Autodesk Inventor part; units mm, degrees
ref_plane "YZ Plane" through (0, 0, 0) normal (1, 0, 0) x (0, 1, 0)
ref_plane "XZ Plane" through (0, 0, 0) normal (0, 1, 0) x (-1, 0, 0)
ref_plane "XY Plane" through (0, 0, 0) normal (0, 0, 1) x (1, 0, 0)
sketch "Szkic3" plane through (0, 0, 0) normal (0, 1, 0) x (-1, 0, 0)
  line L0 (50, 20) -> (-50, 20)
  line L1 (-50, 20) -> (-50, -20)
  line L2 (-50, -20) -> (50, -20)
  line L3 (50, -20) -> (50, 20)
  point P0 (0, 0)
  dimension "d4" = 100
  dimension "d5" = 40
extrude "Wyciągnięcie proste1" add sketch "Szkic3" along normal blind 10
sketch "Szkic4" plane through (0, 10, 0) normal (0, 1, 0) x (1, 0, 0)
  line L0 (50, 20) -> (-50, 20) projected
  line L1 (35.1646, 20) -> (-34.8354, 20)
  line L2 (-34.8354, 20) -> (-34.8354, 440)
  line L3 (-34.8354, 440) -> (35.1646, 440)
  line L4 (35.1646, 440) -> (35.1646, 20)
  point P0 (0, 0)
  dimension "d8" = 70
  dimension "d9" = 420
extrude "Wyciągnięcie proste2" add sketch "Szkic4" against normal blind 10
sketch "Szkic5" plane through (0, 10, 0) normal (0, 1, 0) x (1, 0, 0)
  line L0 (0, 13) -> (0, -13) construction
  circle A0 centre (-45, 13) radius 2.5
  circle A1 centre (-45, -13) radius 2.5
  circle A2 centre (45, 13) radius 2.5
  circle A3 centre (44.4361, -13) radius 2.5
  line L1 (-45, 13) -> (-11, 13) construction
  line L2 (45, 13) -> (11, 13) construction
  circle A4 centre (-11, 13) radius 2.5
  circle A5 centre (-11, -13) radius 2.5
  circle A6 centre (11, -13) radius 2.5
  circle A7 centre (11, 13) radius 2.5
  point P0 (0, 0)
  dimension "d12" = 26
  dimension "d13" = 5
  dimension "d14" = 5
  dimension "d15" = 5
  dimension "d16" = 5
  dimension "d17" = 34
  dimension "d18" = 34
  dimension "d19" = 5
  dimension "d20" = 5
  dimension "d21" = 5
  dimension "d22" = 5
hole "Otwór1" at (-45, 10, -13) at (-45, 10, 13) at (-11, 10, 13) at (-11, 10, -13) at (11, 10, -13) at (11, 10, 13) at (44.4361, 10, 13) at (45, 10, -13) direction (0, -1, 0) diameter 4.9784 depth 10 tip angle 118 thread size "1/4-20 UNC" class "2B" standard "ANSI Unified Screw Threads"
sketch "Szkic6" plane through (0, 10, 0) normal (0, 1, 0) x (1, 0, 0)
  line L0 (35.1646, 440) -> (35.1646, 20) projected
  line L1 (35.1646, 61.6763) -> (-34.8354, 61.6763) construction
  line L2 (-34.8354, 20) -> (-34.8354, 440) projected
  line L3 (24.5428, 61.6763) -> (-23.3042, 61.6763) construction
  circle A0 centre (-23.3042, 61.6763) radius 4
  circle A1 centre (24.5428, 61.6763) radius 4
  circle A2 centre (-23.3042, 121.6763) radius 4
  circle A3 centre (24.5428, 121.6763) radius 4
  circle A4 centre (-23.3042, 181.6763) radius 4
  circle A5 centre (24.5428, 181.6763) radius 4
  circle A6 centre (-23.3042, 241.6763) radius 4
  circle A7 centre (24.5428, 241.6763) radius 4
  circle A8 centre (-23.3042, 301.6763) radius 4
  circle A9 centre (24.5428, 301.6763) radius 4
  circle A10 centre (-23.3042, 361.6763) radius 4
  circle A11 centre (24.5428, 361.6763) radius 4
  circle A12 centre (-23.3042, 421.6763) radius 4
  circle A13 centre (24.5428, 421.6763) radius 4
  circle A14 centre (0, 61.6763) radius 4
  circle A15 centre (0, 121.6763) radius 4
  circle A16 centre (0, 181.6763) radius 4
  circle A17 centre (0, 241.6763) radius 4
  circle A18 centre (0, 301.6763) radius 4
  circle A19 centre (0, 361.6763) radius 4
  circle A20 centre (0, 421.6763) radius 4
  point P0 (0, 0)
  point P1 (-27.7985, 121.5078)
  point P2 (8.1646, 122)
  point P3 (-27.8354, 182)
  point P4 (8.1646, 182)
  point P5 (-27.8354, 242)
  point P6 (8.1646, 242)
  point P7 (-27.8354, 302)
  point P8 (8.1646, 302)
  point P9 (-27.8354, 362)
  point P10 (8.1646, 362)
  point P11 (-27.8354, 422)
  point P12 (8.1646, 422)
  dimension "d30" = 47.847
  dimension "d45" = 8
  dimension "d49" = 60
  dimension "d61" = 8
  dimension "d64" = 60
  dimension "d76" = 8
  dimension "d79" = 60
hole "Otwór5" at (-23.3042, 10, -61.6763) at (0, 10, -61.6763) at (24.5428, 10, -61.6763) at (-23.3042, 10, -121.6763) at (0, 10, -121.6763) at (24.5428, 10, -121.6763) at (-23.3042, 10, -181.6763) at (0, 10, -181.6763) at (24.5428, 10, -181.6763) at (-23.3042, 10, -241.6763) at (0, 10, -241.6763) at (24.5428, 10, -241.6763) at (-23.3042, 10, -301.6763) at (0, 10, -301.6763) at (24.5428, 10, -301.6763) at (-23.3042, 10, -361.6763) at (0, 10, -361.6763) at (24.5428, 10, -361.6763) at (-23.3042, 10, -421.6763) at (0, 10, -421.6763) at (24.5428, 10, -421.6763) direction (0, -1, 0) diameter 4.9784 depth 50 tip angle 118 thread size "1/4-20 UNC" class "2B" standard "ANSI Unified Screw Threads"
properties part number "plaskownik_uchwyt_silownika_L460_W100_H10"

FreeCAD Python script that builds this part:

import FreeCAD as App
import Part
import Sketcher
from FreeCAD import Vector
Q = App.Units.Quantity

doc = App.newDocument("Part")
body = doc.addObject("PartDesign::Body", "Body")

sketch1 = body.newObject("Sketcher::SketchObject", "Sketch")
sketch1.AttachmentSupport = (doc.getObject("XZ_Plane"), [""])
sketch1.MapMode = "FlatFace"
sketch1.addGeometry(Part.LineSegment(Vector(-50, -20, 0), Vector(-50, 20, 0)), False)
sketch1.addGeometry(Part.LineSegment(Vector(-50, 20, 0), Vector(50, 20, 0)), False)
sketch1.addGeometry(Part.LineSegment(Vector(50, 20, 0), Vector(50, -20, 0)), False)
sketch1.addGeometry(Part.LineSegment(Vector(50, -20, 0), Vector(-50, -20, 0)), False)
sketch1.addConstraint(Sketcher.Constraint("Coincident", 0, 2, 1, 1))
sketch1.addConstraint(Sketcher.Constraint("Coincident", 1, 2, 2, 1))
sketch1.addConstraint(Sketcher.Constraint("Coincident", 2, 2, 3, 1))
sketch1.addConstraint(Sketcher.Constraint("Coincident", 3, 2, 0, 1))
sketch1.addConstraint(Sketcher.Constraint("Vertical", 0))
sketch1.addConstraint(Sketcher.Constraint("Horizontal", 1))
sketch1.addConstraint(Sketcher.Constraint("Vertical", 2))
sketch1.addConstraint(Sketcher.Constraint("Horizontal", 3))
sketch1.addConstraint(Sketcher.Constraint("Symmetric", 0, 2, 2, 2, -1, 1))
sketch1.addConstraint(Sketcher.Constraint("DistanceX", 1, 1, 1, 2, Q("3.937 in")))
sketch1.addConstraint(Sketcher.Constraint("DistanceY", 0, 1, 0, 2, Q("1.5748 in")))
pad1 = body.newObject("PartDesign::Pad", "Pad")
pad1.Profile = sketch1
pad1.Length = Q("0.3937008 in")
pad1.Reversed = True

sketch2 = body.newObject("Sketcher::SketchObject", "Sketch001")
sketch2.AttachmentSupport = (doc.getObject("XZ_Plane"), [""])
sketch2.MapMode = "FlatFace"
sketch2.AttachmentOffset = App.Placement(Vector(0, 0, -0.3937008 * 25.4), App.Rotation())
sketch2.addGeometry(Part.LineSegment(Vector(-35, -20, 0), Vector(35, -20, 0)), False)
sketch2.addGeometry(Part.LineSegment(Vector(35, -20, 0), Vector(35, -440, 0)), False)
sketch2.addGeometry(Part.LineSegment(Vector(35, -440, 0), Vector(-35, -440, 0)), False)
sketch2.addGeometry(Part.LineSegment(Vector(-35, -440, 0), Vector(-35, -20, 0)), False)
sketch2.addConstraint(Sketcher.Constraint("Coincident", 0, 2, 1, 1))
sketch2.addConstraint(Sketcher.Constraint("Coincident", 1, 2, 2, 1))
sketch2.addConstraint(Sketcher.Constraint("Coincident", 2, 2, 3, 1))
sketch2.addConstraint(Sketcher.Constraint("Coincident", 3, 2, 0, 1))
sketch2.addConstraint(Sketcher.Constraint("Horizontal", 0))
sketch2.addConstraint(Sketcher.Constraint("Vertical", 1))
sketch2.addConstraint(Sketcher.Constraint("Horizontal", 2))
sketch2.addConstraint(Sketcher.Constraint("Vertical", 3))
sketch2.addConstraint(Sketcher.Constraint("DistanceX", 0, 1, 0, 2, Q("2.7559 in")))
sketch2.addConstraint(Sketcher.Constraint("DistanceY", 1, 2, 1, 1, 420.0))
sketch2.addConstraint(Sketcher.Constraint("DistanceY", 0, 2, -1, 1, Q("0.7874 in")))
sketch2.addConstraint(Sketcher.Constraint("DistanceX", -1, 1, 0, 2, 35.1646))
pad2 = body.newObject("PartDesign::Pad", "Pad001")
pad2.Profile = sketch2
pad2.Length = Q("0.3937008 in")

sketch3 = body.newObject("Sketcher::SketchObject", "Sketch002")
sketch3.AttachmentSupport = (doc.getObject("XZ_Plane"), [""])
sketch3.MapMode = "FlatFace"
sketch3.AttachmentOffset = App.Placement(Vector(0, 0, -0.3937008 * 25.4), App.Rotation())
sketch3.addGeometry(Part.Circle(Vector(-45, -13, 0), Vector(0, 0, 1), 2.5), False)
sketch3.addGeometry(Part.Circle(Vector(-45, 13, 0), Vector(0, 0, 1), 2.5), False)
sketch3.addGeometry(Part.Circle(Vector(-11, 13, 0), Vector(0, 0, 1), 2.5), False)
sketch3.addGeometry(Part.Circle(Vector(-11, -13, 0), Vector(0, 0, 1), 2.5), False)
sketch3.addGeometry(Part.Circle(Vector(11, -13, 0), Vector(0, 0, 1), 2.5), False)
sketch3.addGeometry(Part.Circle(Vector(11, 13, 0), Vector(0, 0, 1), 2.5), False)
sketch3.addGeometry(Part.Circle(Vector(44.4, 13, 0), Vector(0, 0, 1), 2.5), False)
sketch3.addGeometry(Part.Circle(Vector(45, -13, 0), Vector(0, 0, 1), 2.5), False)
sketch3.addConstraint(Sketcher.Constraint("Equal", 0, 1))
sketch3.addConstraint(Sketcher.Constraint("Equal", 1, 2))
sketch3.addConstraint(Sketcher.Constraint("Equal", 2, 3))
sketch3.addConstraint(Sketcher.Constraint("Equal", 3, 4))
sketch3.addConstraint(Sketcher.Constraint("Equal", 4, 5))
sketch3.addConstraint(Sketcher.Constraint("Equal", 5, 6))
sketch3.addConstraint(Sketcher.Constraint("Equal", 6, 7))
sketch3.addConstraint(Sketcher.Constraint("Symmetric", 2, 3, 4, 3, -1, 1))
sketch3.addConstraint(Sketcher.Constraint("Symmetric", 3, 3, 5, 3, -1, 1))
sketch3.addConstraint(Sketcher.Constraint("Symmetric", 1, 3, 7, 3, -1, 1))
sketch3.addConstraint(Sketcher.Constraint("Symmetric", 3, 3, 4, 3, -2))
sketch3.addConstraint(Sketcher.Constraint("Symmetric", 0, 3, 7, 3, -2))
sketch3.addConstraint(Sketcher.Constraint("Horizontal", 1, 3, 2, 3))
sketch3.addConstraint(Sketcher.Constraint("Horizontal", 5, 3, 6, 3))
sketch3.addConstraint(Sketcher.Constraint("Diameter", 0, Q("0.196 in")))
sketch3.addConstraint(Sketcher.Constraint("DistanceY", 0, 3, -1, 1, Q("0.5118 in")))
sketch3.addConstraint(Sketcher.Constraint("DistanceX", 1, 3, 6, 3, Q("3.5211 in")))
sketch3.addConstraint(Sketcher.Constraint("DistanceX", 6, 3, 7, 3, Q("0.0222 in")))
sketch3.addConstraint(Sketcher.Constraint("DistanceX", 2, 3, -1, 1, 11.0))
doc.recompute()
hole = body.newObject("PartDesign::Hole", "Hole")
hole.Profile = sketch3
hole.ThreadType = "None"
hole.Diameter = Q("0.196 in")
hole.DepthType = "Dimension"
hole.Depth = Q("0.3937008 in")
hole.DrillPoint = "Angled"
hole.DrillPointAngle = 118
hole.Reversed = True

sketch4 = body.newObject("Sketcher::SketchObject", "Sketch003")
sketch4.AttachmentSupport = (doc.getObject("XZ_Plane"), [""])
sketch4.MapMode = "FlatFace"
sketch4.AttachmentOffset = App.Placement(Vector(0, 0, -0.3937008 * 25.4), App.Rotation())
sketch4.addGeometry(Part.Circle(Vector(-23.3, -61.7, 0), Vector(0, 0, 1), 2.5), False)
sketch4.addGeometry(Part.Circle(Vector(0, -61.7, 0), Vector(0, 0, 1), 2.5), False)
sketch4.addGeometry(Part.Circle(Vector(24.5, -61.7, 0), Vector(0, 0, 1), 2.5), False)
sketch4.addGeometry(Part.Circle(Vector(-23.3, -121.7, 0), Vector(0, 0, 1), 2.5), False)
sketch4.addGeometry(Part.Circle(Vector(0, -121.7, 0), Vector(0, 0, 1), 2.5), False)
sketch4.addGeometry(Part.Circle(Vector(24.5, -121.7, 0), Vector(0, 0, 1), 2.5), False)
sketch4.addGeometry(Part.Circle(Vector(-23.3, -181.7, 0), Vector(0, 0, 1), 2.5), False)
sketch4.addGeometry(Part.Circle(Vector(0, -181.7, 0), Vector(0, 0, 1), 2.5), False)
sketch4.addGeometry(Part.Circle(Vector(24.5, -181.7, 0), Vector(0, 0, 1), 2.5), False)
sketch4.addGeometry(Part.Circle(Vector(-23.3, -241.7, 0), Vector(0, 0, 1), 2.5), False)
sketch4.addGeometry(Part.Circle(Vector(0, -241.7, 0), Vector(0, 0, 1), 2.5), False)
sketch4.addGeometry(Part.Circle(Vector(24.5, -241.7, 0), Vector(0, 0, 1), 2.5), False)
sketch4.addGeometry(Part.Circle(Vector(-23.3, -301.7, 0), Vector(0, 0, 1), 2.5), False)
sketch4.addGeometry(Part.Circle(Vector(0, -301.7, 0), Vector(0, 0, 1), 2.5), False)
sketch4.addGeometry(Part.Circle(Vector(24.5, -301.7, 0), Vector(0, 0, 1), 2.5), False)
sketch4.addGeometry(Part.Circle(Vector(-23.3, -361.7, 0), Vector(0, 0, 1), 2.5), False)
sketch4.addGeometry(Part.Circle(Vector(0, -361.7, 0), Vector(0, 0, 1), 2.5), False)
sketch4.addGeometry(Part.Circle(Vector(24.5, -361.7, 0), Vector(0, 0, 1), 2.5), False)
sketch4.addGeometry(Part.Circle(Vector(-23.3, -421.7, 0), Vector(0, 0, 1), 2.5), False)
sketch4.addGeometry(Part.Circle(Vector(0, -421.7, 0), Vector(0, 0, 1), 2.5), False)
sketch4.addGeometry(Part.Circle(Vector(24.5, -421.7, 0), Vector(0, 0, 1), 2.5), False)
sketch4.addConstraint(Sketcher.Constraint("Equal", 0, 1))
sketch4.addConstraint(Sketcher.Constraint("Equal", 1, 2))
sketch4.addConstraint(Sketcher.Constraint("Equal", 2, 3))
sketch4.addConstraint(Sketcher.Constraint("Equal", 3, 4))
sketch4.addConstraint(Sketcher.Constraint("Equal", 4, 5))
sketch4.addConstraint(Sketcher.Constraint("Equal", 5, 6))
sketch4.addConstraint(Sketcher.Constraint("Equal", 6, 7))
sketch4.addConstraint(Sketcher.Constraint("Equal", 7, 8))
sketch4.addConstraint(Sketcher.Constraint("Equal", 8, 9))
sketch4.addConstraint(Sketcher.Constraint("Equal", 9, 10))
sketch4.addConstraint(Sketcher.Constraint("Equal", 10, 11))
sketch4.addConstraint(Sketcher.Constraint("Equal", 11, 12))
sketch4.addConstraint(Sketcher.Constraint("Equal", 12, 13))
sketch4.addConstraint(Sketcher.Constraint("Equal", 13, 14))
sketch4.addConstraint(Sketcher.Constraint("Equal", 14, 15))
sketch4.addConstraint(Sketcher.Constraint("Equal", 15, 16))
sketch4.addConstraint(Sketcher.Constraint("Equal", 16, 17))
sketch4.addConstraint(Sketcher.Constraint("Equal", 17, 18))
sketch4.addConstraint(Sketcher.Constraint("Equal", 18, 19))
sketch4.addConstraint(Sketcher.Constraint("Equal", 19, 20))
sketch4.addConstraint(Sketcher.Constraint("PointOnObject", 1, 3, -2))
sketch4.addConstraint(Sketcher.Constraint("PointOnObject", 4, 3, -2))
sketch4.addConstraint(Sketcher.Constraint("PointOnObject", 7, 3, -2))
sketch4.addConstraint(Sketcher.Constraint("PointOnObject", 10, 3, -2))
sketch4.addConstraint(Sketcher.Constraint("PointOnObject", 13, 3, -2))
sketch4.addConstraint(Sketcher.Constraint("PointOnObject", 16, 3, -2))
sketch4.addConstraint(Sketcher.Constraint("PointOnObject", 19, 3, -2))
sketch4.addConstraint(Sketcher.Constraint("Horizontal", 0, 3, 1, 3))
sketch4.addConstraint(Sketcher.Constraint("Horizontal", 1, 3, 2, 3))
sketch4.addConstraint(Sketcher.Constraint("Horizontal", 3, 3, 4, 3))
sketch4.addConstraint(Sketcher.Constraint("Horizontal", 4, 3, 5, 3))
sketch4.addConstraint(Sketcher.Constraint("Horizontal", 6, 3, 7, 3))
sketch4.addConstraint(Sketcher.Constraint("Horizontal", 7, 3, 8, 3))
sketch4.addConstraint(Sketcher.Constraint("Horizontal", 9, 3, 10, 3))
sketch4.addConstraint(Sketcher.Constraint("Horizontal", 10, 3, 11, 3))
sketch4.addConstraint(Sketcher.Constraint("Horizontal", 12, 3, 13, 3))
sketch4.addConstraint(Sketcher.Constraint("Horizontal", 13, 3, 14, 3))
sketch4.addConstraint(Sketcher.Constraint("Horizontal", 15, 3, 16, 3))
sketch4.addConstraint(Sketcher.Constraint("Horizontal", 16, 3, 17, 3))
sketch4.addConstraint(Sketcher.Constraint("Horizontal", 18, 3, 19, 3))
sketch4.addConstraint(Sketcher.Constraint("Horizontal", 19, 3, 20, 3))
sketch4.addConstraint(Sketcher.Constraint("Vertical", 0, 3, 3, 3))
sketch4.addConstraint(Sketcher.Constraint("Vertical", 2, 3, 5, 3))
sketch4.addConstraint(Sketcher.Constraint("Vertical", 3, 3, 6, 3))
sketch4.addConstraint(Sketcher.Constraint("Vertical", 5, 3, 8, 3))
sketch4.addConstraint(Sketcher.Constraint("Vertical", 6, 3, 9, 3))
sketch4.addConstraint(Sketcher.Constraint("Vertical", 8, 3, 11, 3))
sketch4.addConstraint(Sketcher.Constraint("Vertical", 9, 3, 12, 3))
sketch4.addConstraint(Sketcher.Constraint("Vertical", 11, 3, 14, 3))
sketch4.addConstraint(Sketcher.Constraint("Vertical", 12, 3, 15, 3))
sketch4.addConstraint(Sketcher.Constraint("Vertical", 14, 3, 17, 3))
sketch4.addConstraint(Sketcher.Constraint("Vertical", 15, 3, 18, 3))
sketch4.addConstraint(Sketcher.Constraint("Vertical", 17, 3, 20, 3))
sketch4.addConstraint(Sketcher.Constraint("Diameter", 0, Q("0.196 in")))
sketch4.addConstraint(Sketcher.Constraint("DistanceX", 0, 3, -1, 1, Q("0.9175 in")))
sketch4.addConstraint(Sketcher.Constraint("DistanceY", 0, 3, -1, 1, Q("2.4282 in")))
sketch4.addConstraint(Sketcher.Constraint("DistanceY", 3, 3, -1, 1, Q("4.7904 in")))
sketch4.addConstraint(Sketcher.Constraint("DistanceY", 6, 3, -1, 1, Q("7.1526 in")))
sketch4.addConstraint(Sketcher.Constraint("DistanceY", 9, 3, 6, 3, Q("2.3622 in")))
sketch4.addConstraint(Sketcher.Constraint("DistanceY", 12, 3, 9, 3, Q("2.3622 in")))
sketch4.addConstraint(Sketcher.Constraint("DistanceY", 15, 3, 12, 3, Q("2.3622 in")))
sketch4.addConstraint(Sketcher.Constraint("DistanceY", 18, 3, 15, 3, Q("2.3622 in")))
sketch4.addConstraint(Sketcher.Constraint("DistanceX", -1, 1, 2, 3, 24.5428))
doc.recompute()
hole2 = body.newObject("PartDesign::Hole", "Hole001")
hole2.Profile = sketch4
hole2.ThreadType = "None"
hole2.Diameter = Q("0.196 in")
hole2.DepthType = "Dimension"
hole2.Depth = Q("1.9685039 in")
hole2.DrillPoint = "Angled"
hole2.DrillPointAngle = 118
hole2.Reversed = True

doc.recompute()
